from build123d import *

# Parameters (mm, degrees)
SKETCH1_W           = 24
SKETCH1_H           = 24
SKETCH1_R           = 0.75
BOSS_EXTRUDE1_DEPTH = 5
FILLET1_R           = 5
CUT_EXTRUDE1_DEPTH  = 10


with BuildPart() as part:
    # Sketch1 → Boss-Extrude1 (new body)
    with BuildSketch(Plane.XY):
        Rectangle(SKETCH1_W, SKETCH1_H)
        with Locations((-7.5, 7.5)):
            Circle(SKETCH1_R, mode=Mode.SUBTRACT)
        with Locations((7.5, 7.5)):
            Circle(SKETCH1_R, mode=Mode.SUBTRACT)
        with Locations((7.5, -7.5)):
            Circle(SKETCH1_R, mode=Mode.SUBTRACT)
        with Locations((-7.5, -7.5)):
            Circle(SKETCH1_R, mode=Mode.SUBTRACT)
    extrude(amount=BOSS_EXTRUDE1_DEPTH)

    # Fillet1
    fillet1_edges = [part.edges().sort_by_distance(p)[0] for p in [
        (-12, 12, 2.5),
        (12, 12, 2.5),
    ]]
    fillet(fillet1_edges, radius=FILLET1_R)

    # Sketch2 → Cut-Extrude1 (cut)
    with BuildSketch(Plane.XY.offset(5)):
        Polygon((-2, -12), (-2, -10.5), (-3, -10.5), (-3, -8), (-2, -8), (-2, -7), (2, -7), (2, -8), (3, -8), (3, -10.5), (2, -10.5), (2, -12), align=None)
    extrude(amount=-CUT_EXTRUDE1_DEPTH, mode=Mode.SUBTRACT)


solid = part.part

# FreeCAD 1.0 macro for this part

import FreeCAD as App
import Part
import Sketcher


def edges_at(feature, points):
    """Names of the edges that pass closest to the given points."""
    edges = feature.Shape.Edges
    near = lambda p: min(range(len(edges)), key=lambda i: edges[i].distToShape(Part.Vertex(*p))[0])
    return sorted({f"Edge{near(p) + 1}" for p in points})


def add_polygon(sketch, points):
    """Adds a closed chain of lines whose ends are joined by coincident constraints."""
    first, n = sketch.GeometryCount, len(points)
    for a, b in zip(points, points[1:] + points[:1]):
        sketch.addGeometry(Part.LineSegment(App.Vector(*a, 0), App.Vector(*b, 0)), False)
    for i in range(n):
        sketch.addConstraint(Sketcher.Constraint("Coincident", first + i, 2, first + (i + 1) % n, 1))

doc = App.newDocument("Part")
body = doc.addObject("PartDesign::Body", "Body")

# Sketch on XY plane
sketch1 = body.newObject("Sketcher::SketchObject", "Sketch")
sketch1.AttachmentSupport = (doc.getObject("XY_Plane"), [""])
sketch1.MapMode = "FlatFace"
add_polygon(sketch1, [(-12, 12), (-12, -12), (12, -12), (12, 12)])  # lines 0-3
sketch1.addGeometry(Part.Circle(App.Vector(-7.5, -7.5, 0), App.Vector(0, 0, 1), 0.75), False)  # 4
sketch1.addGeometry(Part.Circle(App.Vector(7.5, -7.5, 0), App.Vector(0, 0, 1), 0.75), False)  # 5
sketch1.addGeometry(Part.Circle(App.Vector(-7.5, 7.5, 0), App.Vector(0, 0, 1), 0.75), False)  # 6
sketch1.addGeometry(Part.Circle(App.Vector(7.5, 7.5, 0), App.Vector(0, 0, 1), 0.75), False)  # 7
sketch1.addConstraint([
    Sketcher.Constraint("Vertical", 0),
    Sketcher.Constraint("Horizontal", 1),
    Sketcher.Constraint("Vertical", 2),
    Sketcher.Constraint("Horizontal", 3),
    Sketcher.Constraint("Equal", 4, 5),
    Sketcher.Constraint("Equal", 5, 6),
    Sketcher.Constraint("Equal", 6, 7),
    Sketcher.Constraint("Symmetric", 5, 3, 6, 3, -1, 1),
    Sketcher.Constraint("Symmetric", 4, 3, 7, 3, -1, 1),
    Sketcher.Constraint("Symmetric", 0, 2, 2, 2, -1, 1),
    Sketcher.Constraint("Symmetric", 4, 3, 5, 3, -2),
    Sketcher.Constraint("Equal", 3, 0),
    Sketcher.Constraint("Diameter", 4, 1.5),
    Sketcher.Constraint("DistanceX", 1, 1, 1, 2, 24.0),
    Sketcher.Constraint("DistanceX", 4, 3, 5, 3, 15.0),
    Sketcher.Constraint("DistanceY", 4, 3, 6, 3, 15.0),
])
pad1 = body.newObject("PartDesign::Pad", "Pad")
pad1.Profile = sketch1
pad1.Length = 5
doc.recompute()

fillet = body.newObject("PartDesign::Fillet", "Fillet")
fillet.Base = (pad1, edges_at(pad1, [(-12, 12, 2.5), (12, 12, 2.5)]))
fillet.Radius = 5

# Sketch on XY plane
sketch2 = body.newObject("Sketcher::SketchObject", "Sketch001")
sketch2.AttachmentSupport = (doc.getObject("XY_Plane"), [""])
sketch2.MapMode = "FlatFace"
sketch2.AttachmentOffset = App.Placement(App.Vector(0, 0, 5), App.Rotation())
add_polygon(sketch2, [(-2, -10.5), (-2, -12), (2, -12), (2, -10.5), (3, -10.5), (3, -8), (2, -8), (2, -7), (-2, -7), (-2, -8), (-3, -8), (-3, -10.5)])  # lines 0-11
sketch2.addConstraint([
    Sketcher.Constraint("Vertical", 0),
    Sketcher.Constraint("Horizontal", 1),
    Sketcher.Constraint("Vertical", 2),
    Sketcher.Constraint("Horizontal", 3),
    Sketcher.Constraint("Vertical", 4),
    Sketcher.Constraint("Horizontal", 5),
    Sketcher.Constraint("Vertical", 6),
    Sketcher.Constraint("Horizontal", 7),
    Sketcher.Constraint("Vertical", 8),
    Sketcher.Constraint("Horizontal", 9),
    Sketcher.Constraint("Vertical", 10),
    Sketcher.Constraint("Horizontal", 11),
    Sketcher.Constraint("Symmetric", 5, 2, 8, 2, -2),
    Sketcher.Constraint("Symmetric", 3, 2, 10, 2, -2),
    Sketcher.Constraint("Vertical", 2, 2, 5, 2),
    Sketcher.Constraint("Vertical", 0, 2, 7, 2),
    Sketcher.Constraint("Equal", 11, 6),
    Sketcher.Constraint("DistanceX", 1, 1, 1, 2, 4.0),
    Sketcher.Constraint("DistanceX", 3, 1, 3, 2, 1.0),
    Sketcher.Constraint("DistanceY", 0, 2, 0, 1, 1.5),
    Sketcher.Constraint("DistanceY", 4, 1, 4, 2, 2.5),
    Sketcher.Constraint("DistanceY", 0, 2, -1, 1, 12.0),
])
pocket1 = body.newObject("PartDesign::Pocket", "Pocket")
pocket1.Profile = sketch2
pocket1.Length = 10

doc.recompute()
